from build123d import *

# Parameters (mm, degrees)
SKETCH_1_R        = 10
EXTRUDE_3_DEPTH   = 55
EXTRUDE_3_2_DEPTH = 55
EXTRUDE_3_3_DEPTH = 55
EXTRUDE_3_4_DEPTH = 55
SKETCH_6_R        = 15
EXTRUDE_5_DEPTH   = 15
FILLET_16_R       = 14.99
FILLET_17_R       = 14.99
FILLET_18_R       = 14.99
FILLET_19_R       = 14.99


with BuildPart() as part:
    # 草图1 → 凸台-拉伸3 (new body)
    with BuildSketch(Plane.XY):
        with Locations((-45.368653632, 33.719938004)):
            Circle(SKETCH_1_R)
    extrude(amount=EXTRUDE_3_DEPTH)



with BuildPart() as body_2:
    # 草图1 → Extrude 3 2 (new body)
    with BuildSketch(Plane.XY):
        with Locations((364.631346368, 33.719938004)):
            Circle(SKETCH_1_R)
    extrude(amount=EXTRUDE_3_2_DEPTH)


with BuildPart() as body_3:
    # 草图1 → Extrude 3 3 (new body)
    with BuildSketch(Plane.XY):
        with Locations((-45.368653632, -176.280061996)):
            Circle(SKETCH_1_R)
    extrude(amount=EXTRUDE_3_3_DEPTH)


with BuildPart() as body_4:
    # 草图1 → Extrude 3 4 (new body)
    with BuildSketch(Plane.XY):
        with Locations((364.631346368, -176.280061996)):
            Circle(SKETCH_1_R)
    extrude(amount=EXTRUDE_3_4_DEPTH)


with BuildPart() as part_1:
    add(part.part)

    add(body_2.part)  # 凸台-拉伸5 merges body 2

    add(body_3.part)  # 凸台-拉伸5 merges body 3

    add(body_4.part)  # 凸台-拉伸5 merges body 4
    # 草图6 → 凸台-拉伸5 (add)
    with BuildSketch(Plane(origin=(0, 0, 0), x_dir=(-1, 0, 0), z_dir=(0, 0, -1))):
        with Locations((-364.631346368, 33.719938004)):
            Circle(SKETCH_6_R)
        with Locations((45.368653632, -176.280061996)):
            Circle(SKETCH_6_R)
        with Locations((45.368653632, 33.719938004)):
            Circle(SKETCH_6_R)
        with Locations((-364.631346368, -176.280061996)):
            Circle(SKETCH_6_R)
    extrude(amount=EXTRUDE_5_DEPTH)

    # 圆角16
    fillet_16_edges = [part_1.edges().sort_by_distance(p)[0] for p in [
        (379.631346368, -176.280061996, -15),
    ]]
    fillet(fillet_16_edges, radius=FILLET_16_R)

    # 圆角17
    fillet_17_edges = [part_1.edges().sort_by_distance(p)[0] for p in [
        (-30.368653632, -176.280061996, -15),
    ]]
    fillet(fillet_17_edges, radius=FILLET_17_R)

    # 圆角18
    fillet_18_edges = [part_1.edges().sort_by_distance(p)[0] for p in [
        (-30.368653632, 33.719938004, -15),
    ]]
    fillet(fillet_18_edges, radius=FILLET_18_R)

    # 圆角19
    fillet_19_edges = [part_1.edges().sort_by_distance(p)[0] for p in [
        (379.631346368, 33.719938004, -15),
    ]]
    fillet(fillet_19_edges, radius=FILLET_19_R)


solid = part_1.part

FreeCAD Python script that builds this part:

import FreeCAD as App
import Part
import Sketcher

V = App.Vector


def edges_at(feature, points):
    """Names of the edges that pass closest to the given points."""
    edges = feature.Shape.Edges
    near = lambda p: min(range(len(edges)), key=lambda i: edges[i].distToShape(Part.Vertex(*p))[0])
    return sorted({f"Edge{near(p) + 1}" for p in points})

doc = App.newDocument("Part")
body = doc.addObject("PartDesign::Body", "Body")

# Sketch on XY plane
sketch1 = body.newObject("Sketcher::SketchObject", "Sketch")
sketch1.AttachmentSupport = (doc.getObject("XY_Plane"), [""])
sketch1.MapMode = "FlatFace"
sketch1.addGeometry(Part.Circle(V(-45, 34, 0), V(0, 0, 1), 10), False)
sketch1.addConstraint(Sketcher.Constraint("Diameter", 0, 20.0))
sketch1.addConstraint(Sketcher.Constraint("DistanceY", -1, 1, 0, 3, 33.719938))
sketch1.addConstraint(Sketcher.Constraint("DistanceX", 0, 3, -1, 1, 45.368654))
pad1 = body.newObject("PartDesign::Pad", "Pad")
pad1.Profile = sketch1
pad1.Length = 55
body2 = doc.addObject("PartDesign::Body", "Body001")

# Sketch on XY plane
sketch2 = body2.newObject("Sketcher::SketchObject", "Sketch001")
sketch2.AttachmentSupport = (doc.getObject("XY_Plane001"), [""])
sketch2.MapMode = "FlatFace"
sketch2.addGeometry(Part.Circle(V(365, 34, 0), V(0, 0, 1), 10), False)
sketch2.addConstraint(Sketcher.Constraint("Diameter", 0, 20.0))
sketch2.addConstraint(Sketcher.Constraint("DistanceY", -1, 1, 0, 3, 33.719938))
sketch2.addConstraint(Sketcher.Constraint("DistanceX", -1, 1, 0, 3, 364.631346))
pad2 = body2.newObject("PartDesign::Pad", "Pad001")
pad2.Profile = sketch2
pad2.Length = 55
body3 = doc.addObject("PartDesign::Body", "Body002")

# Sketch on XY plane
sketch3 = body3.newObject("Sketcher::SketchObject", "Sketch002")
sketch3.AttachmentSupport = (doc.getObject("XY_Plane002"), [""])
sketch3.MapMode = "FlatFace"
sketch3.addGeometry(Part.Circle(V(-45, -176, 0), V(0, 0, 1), 10), False)
sketch3.addConstraint(Sketcher.Constraint("Diameter", 0, 20.0))
sketch3.addConstraint(Sketcher.Constraint("DistanceY", 0, 3, -1, 1, 176.280062))
sketch3.addConstraint(Sketcher.Constraint("DistanceX", 0, 3, -1, 1, 45.368654))
pad3 = body3.newObject("PartDesign::Pad", "Pad002")
pad3.Profile = sketch3
pad3.Length = 55
body4 = doc.addObject("PartDesign::Body", "Body003")

# Sketch on XY plane
sketch4 = body4.newObject("Sketcher::SketchObject", "Sketch003")
sketch4.AttachmentSupport = (doc.getObject("XY_Plane003"), [""])
sketch4.MapMode = "FlatFace"
sketch4.addGeometry(Part.Circle(V(365, -176, 0), V(0, 0, 1), 10), False)
sketch4.addConstraint(Sketcher.Constraint("Diameter", 0, 20.0))
sketch4.addConstraint(Sketcher.Constraint("DistanceY", 0, 3, -1, 1, 176.280062))
sketch4.addConstraint(Sketcher.Constraint("DistanceX", -1, 1, 0, 3, 364.631346))
pad4 = body4.newObject("PartDesign::Pad", "Pad003")
pad4.Profile = sketch4
pad4.Length = 55
body.AllowCompound = True
doc.recompute()

boolean = body.newObject("PartDesign::Boolean", "Boolean")
boolean.Type = "Fuse"
boolean.addObjects([body2])
doc.recompute()

boolean2 = body.newObject("PartDesign::Boolean", "Boolean001")
boolean2.Type = "Fuse"
boolean2.addObjects([body3])
doc.recompute()

boolean3 = body.newObject("PartDesign::Boolean", "Boolean002")
boolean3.Type = "Fuse"
boolean3.addObjects([body4])

# Sketch on XY plane
sketch5 = body.newObject("Sketcher::SketchObject", "Sketch004")
sketch5.AttachmentSupport = (doc.getObject("XY_Plane"), [""])
sketch5.MapMode = "FlatFace"
sketch5.addGeometry(Part.Circle(V(365, 34, 0), V(0, 0, 1), 15), False)
sketch5.addGeometry(Part.Circle(V(-45, -176, 0), V(0, 0, 1), 15), False)
sketch5.addGeometry(Part.Circle(V(-45, 34, 0), V(0, 0, 1), 15), False)
sketch5.addGeometry(Part.Circle(V(365, -176, 0), V(0, 0, 1), 15), False)
sketch5.addConstraint(Sketcher.Constraint("Equal", 0, 1))
sketch5.addConstraint(Sketcher.Constraint("Equal", 1, 2))
sketch5.addConstraint(Sketcher.Constraint("Equal", 2, 3))
sketch5.addConstraint(Sketcher.Constraint("Horizontal", 0, 3, 2, 3))
sketch5.addConstraint(Sketcher.Constraint("Horizontal", 1, 3, 3, 3))
sketch5.addConstraint(Sketcher.Constraint("Vertical", 1, 3, 2, 3))
sketch5.addConstraint(Sketcher.Constraint("Vertical", 0, 3, 3, 3))
sketch5.addConstraint(Sketcher.Constraint("Diameter", 0, 30.0))
sketch5.addConstraint(Sketcher.Constraint("DistanceX", 1, 3, 0, 3, 410.0))
sketch5.addConstraint(Sketcher.Constraint("DistanceY", 1, 3, 0, 3, 210.0))
sketch5.addConstraint(Sketcher.Constraint("DistanceY", -1, 1, 0, 3, 33.719938))
sketch5.addConstraint(Sketcher.Constraint("DistanceX", -1, 1, 0, 3, 364.631346))
pad5 = body.newObject("PartDesign::Pad", "Pad004")
pad5.Profile = sketch5
pad5.Length = 15
pad5.Reversed = True
doc.recompute()

fillet = body.newObject("PartDesign::Fillet", "Fillet")
fillet.Base = (pad5, edges_at(pad5, [(379.631, -176.28, -15)]))
fillet.Radius = 14.99
doc.recompute()

fillet2 = body.newObject("PartDesign::Fillet", "Fillet001")
fillet2.Base = (fillet, edges_at(fillet, [(-30.369, -176.28, -15)]))
fillet2.Radius = 14.99
doc.recompute()

fillet3 = body.newObject("PartDesign::Fillet", "Fillet002")
fillet3.Base = (fillet2, edges_at(fillet2, [(-30.369, 33.72, -15)]))
fillet3.Radius = 14.99
doc.recompute()

fillet4 = body.newObject("PartDesign::Fillet", "Fillet003")
fillet4.Base = (fillet3, edges_at(fillet3, [(379.631, 33.72, -15)]))
fillet4.Radius = 14.99

doc.recompute()
